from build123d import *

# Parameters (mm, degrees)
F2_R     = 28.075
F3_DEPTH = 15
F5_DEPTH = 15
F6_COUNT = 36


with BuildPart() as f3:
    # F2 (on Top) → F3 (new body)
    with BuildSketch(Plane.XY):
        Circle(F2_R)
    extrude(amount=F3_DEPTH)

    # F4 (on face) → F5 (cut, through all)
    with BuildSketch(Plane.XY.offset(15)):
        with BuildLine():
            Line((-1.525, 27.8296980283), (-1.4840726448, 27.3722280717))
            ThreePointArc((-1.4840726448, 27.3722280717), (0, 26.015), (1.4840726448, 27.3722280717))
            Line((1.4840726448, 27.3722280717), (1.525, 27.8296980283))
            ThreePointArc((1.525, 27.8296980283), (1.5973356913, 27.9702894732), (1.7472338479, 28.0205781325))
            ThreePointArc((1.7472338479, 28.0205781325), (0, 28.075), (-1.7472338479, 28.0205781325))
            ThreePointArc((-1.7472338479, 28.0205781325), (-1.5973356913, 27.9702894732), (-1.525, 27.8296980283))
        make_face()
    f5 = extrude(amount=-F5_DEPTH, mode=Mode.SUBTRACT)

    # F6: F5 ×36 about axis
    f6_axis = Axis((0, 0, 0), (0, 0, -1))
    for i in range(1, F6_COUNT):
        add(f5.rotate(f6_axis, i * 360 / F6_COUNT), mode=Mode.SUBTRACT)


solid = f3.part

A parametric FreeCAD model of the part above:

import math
import FreeCAD as App
import Part
import Sketcher

V = App.Vector

doc = App.newDocument("Part")
body = doc.addObject("PartDesign::Body", "Body")

sketch1 = doc.addObject("Sketcher::SketchObject", "Sketch")
body.addObject(sketch1)
sketch1.AttachmentSupport = (doc.XY_Plane, [""])
sketch1.MapMode = "FlatFace"
sketch1.addGeometry(Part.Circle(V(0, 0, 0), V(0, 0, 1), 28.075), False)
sketch1.addConstraint([
    Sketcher.Constraint("Coincident", 0, 3, -1, 1),
    Sketcher.Constraint("Diameter", 0, 56.15),
])
pad1 = doc.addObject("PartDesign::Pad", "Pad")
body.addObject(pad1)
pad1.Profile = sketch1
pad1.Length = 15

sketch2 = doc.addObject("Sketcher::SketchObject", "Sketch001")
body.addObject(sketch2)
sketch2.AttachmentSupport = (doc.XY_Plane, [""])
sketch2.MapMode = "FlatFace"
sketch2.AttachmentOffset = App.Placement(V(0, 0, 15), App.Rotation())
sketch2.addGeometry([
    Part.LineSegment(V(-1.525, 27.829698, 0), V(-1.484073, 27.372228, 0)),
    Part.ArcOfCircle(Part.Circle(V(0, 27.505, 0), V(0, 0, 1), 1.49), math.radians(-174.887668), math.radians(-5.112332)),
    Part.LineSegment(V(1.484073, 27.372228, 0), V(1.525, 27.829698, 0)),
    Part.ArcOfCircle(Part.Circle(V(1.734165, 27.810985, 0), V(0, 0, 1), 0.21), math.radians(86.431919), math.radians(174.887668)),
    Part.ArcOfCircle(Part.Circle(V(0, 0, 0), V(0, 0, 1), 28.075), math.radians(86.431919), math.radians(93.568081)),
    Part.ArcOfCircle(Part.Circle(V(-1.734165, 27.810985, 0), V(0, 0, 1), 0.21), math.radians(5.112332), math.radians(93.568081)),
], False)
sketch2.addConstraint([
    Sketcher.Constraint("Tangent", 0, 2, 1, 1),
    Sketcher.Constraint("Tangent", 1, 2, 2, 1),
    Sketcher.Constraint("Tangent", 2, 2, 3, 2),
    Sketcher.Constraint("Tangent", 3, 1, 4, 1),
    Sketcher.Constraint("Tangent", 4, 2, 5, 2),
    Sketcher.Constraint("Tangent", 5, 1, 0, 1),
    Sketcher.Constraint("Coincident", 4, 3, -1, 1),
    Sketcher.Constraint("Equal", 3, 5),
    Sketcher.Constraint("Symmetric", 0, 2, 1, 2, -2),
    Sketcher.Constraint("Radius", 1, 1.49),
    Sketcher.Constraint("Radius", 3, 0.21),
    Sketcher.Constraint("Radius", 4, 28.075),
    Sketcher.Constraint("DistanceY", -1, 1, 1, 3, 27.505),
    Sketcher.Constraint("DistanceX", -1, 1, 2, 2, 1.525),
])
pocket1 = doc.addObject("PartDesign::Pocket", "Pocket")
body.addObject(pocket1)
pocket1.Profile = sketch2
pocket1.Type = "ThroughAll"
doc.recompute()

polarpattern = doc.addObject("PartDesign::PolarPattern", "PolarPattern")
body.addObject(polarpattern)
polarpattern.Originals = [pocket1]
polarpattern.Axis = (doc.Z_Axis, [""])
polarpattern.Angle = 360
polarpattern.Occurrences = 36
body.Tip = polarpattern

doc.recompute()
